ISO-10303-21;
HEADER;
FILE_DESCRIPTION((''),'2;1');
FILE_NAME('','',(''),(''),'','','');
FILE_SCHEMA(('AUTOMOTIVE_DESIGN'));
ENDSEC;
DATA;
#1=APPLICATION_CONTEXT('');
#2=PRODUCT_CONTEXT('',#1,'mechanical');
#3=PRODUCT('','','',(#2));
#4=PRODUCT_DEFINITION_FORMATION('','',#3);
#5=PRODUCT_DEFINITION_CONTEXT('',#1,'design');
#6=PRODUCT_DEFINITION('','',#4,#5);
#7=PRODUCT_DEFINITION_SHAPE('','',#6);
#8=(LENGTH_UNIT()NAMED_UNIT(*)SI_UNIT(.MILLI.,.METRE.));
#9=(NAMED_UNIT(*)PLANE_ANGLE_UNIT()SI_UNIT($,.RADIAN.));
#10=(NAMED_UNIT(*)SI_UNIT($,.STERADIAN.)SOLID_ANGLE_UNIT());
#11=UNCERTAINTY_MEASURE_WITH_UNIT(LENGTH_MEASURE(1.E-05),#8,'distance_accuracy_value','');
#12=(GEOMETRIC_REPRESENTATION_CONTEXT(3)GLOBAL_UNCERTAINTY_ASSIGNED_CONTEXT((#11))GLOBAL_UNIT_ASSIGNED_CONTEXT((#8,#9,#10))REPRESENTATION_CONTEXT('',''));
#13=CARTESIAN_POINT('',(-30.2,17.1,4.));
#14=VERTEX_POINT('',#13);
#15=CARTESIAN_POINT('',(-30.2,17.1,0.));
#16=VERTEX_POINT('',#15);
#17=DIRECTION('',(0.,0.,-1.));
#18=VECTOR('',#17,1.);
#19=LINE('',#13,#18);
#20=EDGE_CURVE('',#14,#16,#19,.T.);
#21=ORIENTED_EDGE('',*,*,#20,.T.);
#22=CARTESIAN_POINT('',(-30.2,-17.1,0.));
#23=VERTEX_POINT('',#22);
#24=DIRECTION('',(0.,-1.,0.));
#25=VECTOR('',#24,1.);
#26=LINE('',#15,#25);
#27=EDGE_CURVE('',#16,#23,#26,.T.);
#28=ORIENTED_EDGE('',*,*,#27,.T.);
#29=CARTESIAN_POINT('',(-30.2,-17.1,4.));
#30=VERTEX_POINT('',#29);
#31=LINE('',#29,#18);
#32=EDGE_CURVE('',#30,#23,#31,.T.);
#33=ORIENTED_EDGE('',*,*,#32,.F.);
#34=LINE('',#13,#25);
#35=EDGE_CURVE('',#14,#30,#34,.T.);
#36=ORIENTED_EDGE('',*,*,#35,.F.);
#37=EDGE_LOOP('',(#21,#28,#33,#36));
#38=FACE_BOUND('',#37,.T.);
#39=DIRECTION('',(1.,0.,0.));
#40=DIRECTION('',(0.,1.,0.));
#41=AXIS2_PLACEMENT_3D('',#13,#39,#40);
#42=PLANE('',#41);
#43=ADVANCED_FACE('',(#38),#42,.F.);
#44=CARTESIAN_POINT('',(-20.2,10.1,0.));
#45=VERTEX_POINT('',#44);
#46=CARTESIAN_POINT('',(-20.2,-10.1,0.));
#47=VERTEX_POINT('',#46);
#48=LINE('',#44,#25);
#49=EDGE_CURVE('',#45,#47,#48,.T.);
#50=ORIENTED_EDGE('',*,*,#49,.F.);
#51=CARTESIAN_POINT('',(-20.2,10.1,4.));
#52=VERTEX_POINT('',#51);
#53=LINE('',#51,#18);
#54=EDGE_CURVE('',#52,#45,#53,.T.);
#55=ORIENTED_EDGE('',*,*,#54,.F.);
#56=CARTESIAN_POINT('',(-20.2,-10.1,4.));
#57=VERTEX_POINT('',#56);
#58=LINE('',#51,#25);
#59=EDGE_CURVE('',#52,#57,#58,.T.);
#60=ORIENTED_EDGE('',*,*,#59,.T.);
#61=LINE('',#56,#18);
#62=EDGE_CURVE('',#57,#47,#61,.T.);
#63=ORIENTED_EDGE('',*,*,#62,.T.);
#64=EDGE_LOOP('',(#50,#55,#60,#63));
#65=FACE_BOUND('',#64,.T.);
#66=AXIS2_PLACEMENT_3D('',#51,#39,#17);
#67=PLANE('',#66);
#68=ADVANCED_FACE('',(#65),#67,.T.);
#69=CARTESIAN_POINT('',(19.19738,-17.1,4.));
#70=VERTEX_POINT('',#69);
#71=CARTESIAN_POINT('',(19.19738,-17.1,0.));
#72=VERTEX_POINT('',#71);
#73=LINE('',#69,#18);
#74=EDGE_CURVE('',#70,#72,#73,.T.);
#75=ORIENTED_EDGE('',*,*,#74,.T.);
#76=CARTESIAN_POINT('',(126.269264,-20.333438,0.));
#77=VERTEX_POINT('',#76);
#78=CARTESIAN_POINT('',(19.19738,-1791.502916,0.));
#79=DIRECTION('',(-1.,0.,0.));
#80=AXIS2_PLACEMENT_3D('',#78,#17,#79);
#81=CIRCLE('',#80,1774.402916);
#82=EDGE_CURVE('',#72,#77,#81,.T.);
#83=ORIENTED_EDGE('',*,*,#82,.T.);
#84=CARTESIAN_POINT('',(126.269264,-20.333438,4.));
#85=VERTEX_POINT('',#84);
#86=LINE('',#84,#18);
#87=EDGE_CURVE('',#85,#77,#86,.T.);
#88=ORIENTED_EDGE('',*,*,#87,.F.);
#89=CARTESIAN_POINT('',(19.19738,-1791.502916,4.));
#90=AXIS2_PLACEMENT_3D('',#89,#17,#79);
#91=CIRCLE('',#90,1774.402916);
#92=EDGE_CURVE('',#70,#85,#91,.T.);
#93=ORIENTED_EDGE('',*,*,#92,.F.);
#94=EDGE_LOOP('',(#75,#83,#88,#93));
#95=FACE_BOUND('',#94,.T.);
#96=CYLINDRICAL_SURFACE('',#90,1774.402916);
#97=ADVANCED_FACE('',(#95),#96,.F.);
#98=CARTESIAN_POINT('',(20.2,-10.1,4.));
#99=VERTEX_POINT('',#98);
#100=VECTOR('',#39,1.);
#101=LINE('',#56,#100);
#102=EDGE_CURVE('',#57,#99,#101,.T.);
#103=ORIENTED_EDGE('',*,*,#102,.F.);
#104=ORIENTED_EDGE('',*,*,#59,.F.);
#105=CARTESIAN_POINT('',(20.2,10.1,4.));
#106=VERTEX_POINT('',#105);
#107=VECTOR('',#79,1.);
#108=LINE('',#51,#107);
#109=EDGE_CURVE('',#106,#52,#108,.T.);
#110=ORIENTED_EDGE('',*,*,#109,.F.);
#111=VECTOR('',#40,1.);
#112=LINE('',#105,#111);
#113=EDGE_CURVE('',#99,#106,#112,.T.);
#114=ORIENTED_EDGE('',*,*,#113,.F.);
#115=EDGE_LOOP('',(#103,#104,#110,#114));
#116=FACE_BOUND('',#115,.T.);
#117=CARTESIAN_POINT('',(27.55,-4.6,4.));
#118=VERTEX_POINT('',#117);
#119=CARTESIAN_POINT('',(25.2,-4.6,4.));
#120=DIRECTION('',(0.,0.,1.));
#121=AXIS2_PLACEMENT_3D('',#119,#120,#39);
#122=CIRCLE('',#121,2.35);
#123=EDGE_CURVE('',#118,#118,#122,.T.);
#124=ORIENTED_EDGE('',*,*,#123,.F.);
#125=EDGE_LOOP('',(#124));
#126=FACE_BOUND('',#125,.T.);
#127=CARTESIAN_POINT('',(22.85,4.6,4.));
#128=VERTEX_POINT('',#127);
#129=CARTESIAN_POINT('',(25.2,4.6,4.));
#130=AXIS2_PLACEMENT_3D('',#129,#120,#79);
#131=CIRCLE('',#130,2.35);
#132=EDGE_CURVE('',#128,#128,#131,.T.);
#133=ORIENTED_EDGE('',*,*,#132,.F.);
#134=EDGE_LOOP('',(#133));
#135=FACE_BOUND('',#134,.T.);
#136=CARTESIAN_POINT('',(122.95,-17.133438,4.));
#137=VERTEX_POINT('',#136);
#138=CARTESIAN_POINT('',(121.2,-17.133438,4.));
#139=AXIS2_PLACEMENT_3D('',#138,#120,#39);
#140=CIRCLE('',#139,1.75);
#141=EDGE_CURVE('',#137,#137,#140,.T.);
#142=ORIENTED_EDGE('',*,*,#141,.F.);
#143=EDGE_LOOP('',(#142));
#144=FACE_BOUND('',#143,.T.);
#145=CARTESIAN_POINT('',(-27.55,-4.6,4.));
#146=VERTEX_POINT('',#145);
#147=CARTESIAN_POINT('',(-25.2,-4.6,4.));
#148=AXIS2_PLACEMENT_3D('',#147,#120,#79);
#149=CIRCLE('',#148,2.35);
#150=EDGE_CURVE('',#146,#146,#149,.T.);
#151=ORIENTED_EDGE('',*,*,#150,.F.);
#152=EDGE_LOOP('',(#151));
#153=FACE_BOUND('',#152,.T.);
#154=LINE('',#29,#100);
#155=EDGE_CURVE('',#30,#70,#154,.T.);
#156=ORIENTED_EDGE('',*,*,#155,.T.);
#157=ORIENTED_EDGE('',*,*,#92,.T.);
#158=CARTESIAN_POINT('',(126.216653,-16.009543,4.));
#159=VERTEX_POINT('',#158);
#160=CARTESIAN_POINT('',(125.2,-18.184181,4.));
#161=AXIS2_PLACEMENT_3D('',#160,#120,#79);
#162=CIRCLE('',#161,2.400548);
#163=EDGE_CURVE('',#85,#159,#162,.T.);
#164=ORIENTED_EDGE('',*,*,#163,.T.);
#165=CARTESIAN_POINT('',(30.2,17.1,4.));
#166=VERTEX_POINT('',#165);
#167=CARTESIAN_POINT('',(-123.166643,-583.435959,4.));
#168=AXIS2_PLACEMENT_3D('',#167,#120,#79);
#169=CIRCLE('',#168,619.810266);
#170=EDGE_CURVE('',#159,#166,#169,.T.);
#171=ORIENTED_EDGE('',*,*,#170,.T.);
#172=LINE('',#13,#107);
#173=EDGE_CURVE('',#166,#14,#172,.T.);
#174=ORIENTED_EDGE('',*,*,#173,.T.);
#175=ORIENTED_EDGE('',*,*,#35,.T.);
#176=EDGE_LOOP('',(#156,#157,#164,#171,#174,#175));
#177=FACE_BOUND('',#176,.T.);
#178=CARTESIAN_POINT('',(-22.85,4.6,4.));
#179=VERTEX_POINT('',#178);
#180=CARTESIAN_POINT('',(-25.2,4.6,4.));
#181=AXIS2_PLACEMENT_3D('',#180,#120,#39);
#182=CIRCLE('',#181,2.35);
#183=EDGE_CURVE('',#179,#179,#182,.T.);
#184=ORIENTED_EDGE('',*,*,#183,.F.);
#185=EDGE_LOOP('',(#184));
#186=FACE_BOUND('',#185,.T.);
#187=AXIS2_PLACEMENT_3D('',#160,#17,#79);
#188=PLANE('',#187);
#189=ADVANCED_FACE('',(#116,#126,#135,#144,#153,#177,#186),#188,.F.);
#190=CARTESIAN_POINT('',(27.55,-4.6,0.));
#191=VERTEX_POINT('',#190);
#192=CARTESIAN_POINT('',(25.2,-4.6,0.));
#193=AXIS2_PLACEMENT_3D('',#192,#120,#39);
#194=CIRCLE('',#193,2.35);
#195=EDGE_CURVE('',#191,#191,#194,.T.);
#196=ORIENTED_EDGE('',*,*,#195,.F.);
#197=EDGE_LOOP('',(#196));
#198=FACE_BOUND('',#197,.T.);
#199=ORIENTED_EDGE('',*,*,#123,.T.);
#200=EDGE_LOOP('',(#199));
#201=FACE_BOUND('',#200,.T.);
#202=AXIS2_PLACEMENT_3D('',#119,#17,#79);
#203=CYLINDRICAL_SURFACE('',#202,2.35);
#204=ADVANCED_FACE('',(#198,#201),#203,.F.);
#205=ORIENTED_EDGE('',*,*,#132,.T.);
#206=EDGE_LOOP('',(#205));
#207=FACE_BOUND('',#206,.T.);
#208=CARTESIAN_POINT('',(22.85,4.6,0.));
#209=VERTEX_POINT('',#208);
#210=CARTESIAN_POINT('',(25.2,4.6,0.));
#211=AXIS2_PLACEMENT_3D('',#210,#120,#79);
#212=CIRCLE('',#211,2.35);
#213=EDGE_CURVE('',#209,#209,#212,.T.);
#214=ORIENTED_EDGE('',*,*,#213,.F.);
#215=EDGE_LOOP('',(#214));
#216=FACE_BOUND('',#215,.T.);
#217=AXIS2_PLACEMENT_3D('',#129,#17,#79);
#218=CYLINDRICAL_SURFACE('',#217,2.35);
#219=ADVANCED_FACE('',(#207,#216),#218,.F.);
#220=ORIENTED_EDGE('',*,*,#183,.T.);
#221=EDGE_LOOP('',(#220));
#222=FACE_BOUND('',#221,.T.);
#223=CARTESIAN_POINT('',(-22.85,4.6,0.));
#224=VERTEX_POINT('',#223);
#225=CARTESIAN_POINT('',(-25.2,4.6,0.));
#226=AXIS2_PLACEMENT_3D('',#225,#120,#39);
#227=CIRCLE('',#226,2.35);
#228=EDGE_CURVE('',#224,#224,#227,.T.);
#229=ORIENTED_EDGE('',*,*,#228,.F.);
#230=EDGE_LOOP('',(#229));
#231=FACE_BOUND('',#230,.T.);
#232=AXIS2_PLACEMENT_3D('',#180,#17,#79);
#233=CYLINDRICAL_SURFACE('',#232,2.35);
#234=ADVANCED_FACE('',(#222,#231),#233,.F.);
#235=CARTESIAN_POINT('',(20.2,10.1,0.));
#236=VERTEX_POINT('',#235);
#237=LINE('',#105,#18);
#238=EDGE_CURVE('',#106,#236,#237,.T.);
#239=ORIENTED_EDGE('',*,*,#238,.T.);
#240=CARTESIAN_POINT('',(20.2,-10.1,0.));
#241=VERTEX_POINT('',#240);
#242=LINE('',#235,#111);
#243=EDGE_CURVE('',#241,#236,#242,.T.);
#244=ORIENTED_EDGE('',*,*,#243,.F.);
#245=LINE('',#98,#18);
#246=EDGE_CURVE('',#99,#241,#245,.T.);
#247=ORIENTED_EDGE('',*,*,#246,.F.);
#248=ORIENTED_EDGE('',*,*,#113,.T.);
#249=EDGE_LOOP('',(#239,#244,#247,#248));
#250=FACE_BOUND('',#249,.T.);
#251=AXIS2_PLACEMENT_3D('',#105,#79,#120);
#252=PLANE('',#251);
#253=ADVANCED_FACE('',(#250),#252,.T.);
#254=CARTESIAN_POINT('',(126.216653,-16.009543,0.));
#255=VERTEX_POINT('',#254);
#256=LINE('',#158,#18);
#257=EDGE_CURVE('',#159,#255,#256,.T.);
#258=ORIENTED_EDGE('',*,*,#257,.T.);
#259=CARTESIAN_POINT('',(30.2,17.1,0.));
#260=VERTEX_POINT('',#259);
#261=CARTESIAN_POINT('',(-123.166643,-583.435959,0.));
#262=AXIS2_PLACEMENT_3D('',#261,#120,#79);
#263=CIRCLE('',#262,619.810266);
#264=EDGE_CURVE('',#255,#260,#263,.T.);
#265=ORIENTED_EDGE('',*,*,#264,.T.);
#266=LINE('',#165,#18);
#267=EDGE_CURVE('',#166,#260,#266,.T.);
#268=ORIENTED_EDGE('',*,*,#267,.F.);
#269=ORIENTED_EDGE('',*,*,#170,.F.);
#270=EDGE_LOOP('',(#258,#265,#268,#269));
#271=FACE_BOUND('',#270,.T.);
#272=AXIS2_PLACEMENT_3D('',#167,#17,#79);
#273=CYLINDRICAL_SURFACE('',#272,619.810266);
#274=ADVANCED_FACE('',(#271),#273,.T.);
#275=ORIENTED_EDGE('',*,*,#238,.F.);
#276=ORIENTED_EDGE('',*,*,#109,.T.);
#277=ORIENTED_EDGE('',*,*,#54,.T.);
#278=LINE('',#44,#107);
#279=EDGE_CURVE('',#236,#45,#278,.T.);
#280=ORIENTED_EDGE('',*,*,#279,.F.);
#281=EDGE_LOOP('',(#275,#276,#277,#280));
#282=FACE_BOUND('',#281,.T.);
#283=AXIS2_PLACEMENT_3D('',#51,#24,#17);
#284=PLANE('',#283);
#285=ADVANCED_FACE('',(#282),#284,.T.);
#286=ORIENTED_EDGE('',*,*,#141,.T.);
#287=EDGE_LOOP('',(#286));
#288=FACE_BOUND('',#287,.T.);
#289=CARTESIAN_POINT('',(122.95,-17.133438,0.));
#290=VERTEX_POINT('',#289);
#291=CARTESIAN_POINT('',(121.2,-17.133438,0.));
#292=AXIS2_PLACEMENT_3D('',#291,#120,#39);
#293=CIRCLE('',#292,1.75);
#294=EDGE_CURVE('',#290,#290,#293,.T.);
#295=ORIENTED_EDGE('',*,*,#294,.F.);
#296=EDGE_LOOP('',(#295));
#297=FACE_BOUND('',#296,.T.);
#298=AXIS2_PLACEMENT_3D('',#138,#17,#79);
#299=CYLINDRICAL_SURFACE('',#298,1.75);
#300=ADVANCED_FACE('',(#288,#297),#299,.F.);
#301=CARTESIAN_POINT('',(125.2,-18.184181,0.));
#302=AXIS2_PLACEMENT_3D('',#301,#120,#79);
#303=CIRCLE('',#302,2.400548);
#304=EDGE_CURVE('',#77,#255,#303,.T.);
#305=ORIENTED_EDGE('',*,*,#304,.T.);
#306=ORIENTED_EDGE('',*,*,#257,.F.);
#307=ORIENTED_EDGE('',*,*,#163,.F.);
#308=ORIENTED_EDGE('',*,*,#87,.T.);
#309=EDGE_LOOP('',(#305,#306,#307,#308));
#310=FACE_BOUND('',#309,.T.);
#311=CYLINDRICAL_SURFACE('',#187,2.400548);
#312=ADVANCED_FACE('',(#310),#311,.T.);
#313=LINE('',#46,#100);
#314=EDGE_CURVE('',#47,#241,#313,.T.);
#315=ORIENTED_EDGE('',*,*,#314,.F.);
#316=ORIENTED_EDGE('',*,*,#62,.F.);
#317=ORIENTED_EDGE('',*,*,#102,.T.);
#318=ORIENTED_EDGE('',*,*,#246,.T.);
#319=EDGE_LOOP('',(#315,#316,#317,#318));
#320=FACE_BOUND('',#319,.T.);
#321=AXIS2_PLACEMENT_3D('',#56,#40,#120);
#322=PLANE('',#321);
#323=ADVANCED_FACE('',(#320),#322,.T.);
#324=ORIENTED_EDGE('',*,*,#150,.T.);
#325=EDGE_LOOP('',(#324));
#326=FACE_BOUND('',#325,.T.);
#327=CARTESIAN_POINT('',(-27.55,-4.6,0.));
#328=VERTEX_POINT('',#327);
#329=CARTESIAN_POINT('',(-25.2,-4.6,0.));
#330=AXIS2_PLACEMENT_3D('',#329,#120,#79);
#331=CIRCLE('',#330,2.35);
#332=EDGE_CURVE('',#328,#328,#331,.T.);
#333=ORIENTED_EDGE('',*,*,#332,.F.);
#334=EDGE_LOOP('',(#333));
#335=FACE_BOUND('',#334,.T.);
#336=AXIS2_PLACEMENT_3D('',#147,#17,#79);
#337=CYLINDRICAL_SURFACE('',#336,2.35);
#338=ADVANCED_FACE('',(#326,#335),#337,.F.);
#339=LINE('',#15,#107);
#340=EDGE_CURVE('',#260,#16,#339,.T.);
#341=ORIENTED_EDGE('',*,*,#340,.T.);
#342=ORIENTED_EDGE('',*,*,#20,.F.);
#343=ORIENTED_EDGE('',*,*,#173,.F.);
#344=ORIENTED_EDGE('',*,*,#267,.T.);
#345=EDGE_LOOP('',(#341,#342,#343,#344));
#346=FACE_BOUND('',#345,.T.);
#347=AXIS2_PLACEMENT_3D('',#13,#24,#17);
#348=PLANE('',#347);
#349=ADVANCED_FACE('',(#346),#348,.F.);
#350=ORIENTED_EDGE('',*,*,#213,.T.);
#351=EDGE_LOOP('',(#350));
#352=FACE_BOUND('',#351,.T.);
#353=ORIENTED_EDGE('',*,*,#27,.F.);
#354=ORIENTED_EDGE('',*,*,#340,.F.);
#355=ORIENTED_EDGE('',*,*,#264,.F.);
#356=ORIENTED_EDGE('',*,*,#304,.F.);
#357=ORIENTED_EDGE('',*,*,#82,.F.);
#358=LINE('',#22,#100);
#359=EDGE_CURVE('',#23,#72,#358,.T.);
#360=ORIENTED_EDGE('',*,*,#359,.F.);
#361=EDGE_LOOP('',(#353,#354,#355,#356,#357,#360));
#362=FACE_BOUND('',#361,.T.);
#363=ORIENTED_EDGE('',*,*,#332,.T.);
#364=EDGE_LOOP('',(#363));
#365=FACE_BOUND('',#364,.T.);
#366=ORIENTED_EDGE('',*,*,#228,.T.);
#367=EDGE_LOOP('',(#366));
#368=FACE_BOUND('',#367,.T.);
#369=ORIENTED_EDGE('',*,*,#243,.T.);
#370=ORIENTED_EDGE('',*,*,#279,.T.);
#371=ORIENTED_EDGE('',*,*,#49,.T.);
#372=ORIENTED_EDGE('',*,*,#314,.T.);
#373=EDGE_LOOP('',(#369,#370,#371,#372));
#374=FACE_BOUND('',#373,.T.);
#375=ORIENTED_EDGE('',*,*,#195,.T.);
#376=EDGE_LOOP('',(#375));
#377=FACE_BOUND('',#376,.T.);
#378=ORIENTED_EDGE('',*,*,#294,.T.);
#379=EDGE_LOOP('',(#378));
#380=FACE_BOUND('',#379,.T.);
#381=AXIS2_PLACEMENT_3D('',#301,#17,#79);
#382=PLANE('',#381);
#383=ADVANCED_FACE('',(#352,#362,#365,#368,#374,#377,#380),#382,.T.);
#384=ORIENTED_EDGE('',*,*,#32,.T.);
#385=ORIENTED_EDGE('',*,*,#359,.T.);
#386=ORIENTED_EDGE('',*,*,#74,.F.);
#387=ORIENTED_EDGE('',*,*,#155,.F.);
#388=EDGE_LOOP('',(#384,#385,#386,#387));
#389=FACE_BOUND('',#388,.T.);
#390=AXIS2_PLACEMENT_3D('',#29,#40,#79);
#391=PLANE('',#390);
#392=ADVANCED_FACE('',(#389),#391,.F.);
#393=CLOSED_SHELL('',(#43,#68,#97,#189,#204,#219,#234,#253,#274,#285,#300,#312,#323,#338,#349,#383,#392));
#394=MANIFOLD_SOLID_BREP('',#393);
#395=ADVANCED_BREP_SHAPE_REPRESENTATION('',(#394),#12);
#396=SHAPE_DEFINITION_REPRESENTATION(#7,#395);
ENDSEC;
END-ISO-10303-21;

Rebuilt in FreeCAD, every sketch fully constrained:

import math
import FreeCAD as App
import Part
import Sketcher

V = App.Vector


def add_polygon(sketch, points):
    """Adds a closed chain of lines whose ends are joined by coincident constraints."""
    first, n = sketch.GeometryCount, len(points)
    for a, b in zip(points, points[1:] + points[:1]):
        sketch.addGeometry(Part.LineSegment(App.Vector(*a, 0), App.Vector(*b, 0)), False)
    for i in range(n):
        sketch.addConstraint(Sketcher.Constraint("Coincident", first + i, 2, first + (i + 1) % n, 1))

doc = App.newDocument("Part")
body = doc.addObject("PartDesign::Body", "Body")

sketch1 = body.newObject("Sketcher::SketchObject", "Sketch")
sketch1.AttachmentSupport = (doc.getObject("XY_Plane"), [""])
sketch1.MapMode = "FlatFace"
sketch1.addGeometry(Part.LineSegment(V(30.2, 17.1, 0), V(-30.2, 17.1, 0)), False)
sketch1.addGeometry(Part.LineSegment(V(-30.2, 17.1, 0), V(-30.2, -17.1, 0)), False)
sketch1.addGeometry(Part.LineSegment(V(-30.2, -17.1, 0), V(19.2, -17.1, 0)), False)
sketch1.addGeometry(Part.ArcOfCircle(Part.Circle(V(19.2, -1791.5, 0), V(0, 0, 1), 1774.4), math.radians(86.54), math.radians(90)), False)
sketch1.addGeometry(Part.ArcOfCircle(Part.Circle(V(125.2, -18.2, 0), V(0, 0, 1), 2.4), math.radians(-64), math.radians(65)), False)
sketch1.addGeometry(Part.ArcOfCircle(Part.Circle(V(-123.2, -583.4, 0), V(0, 0, 1), 619.8), math.radians(66.27), math.radians(75.67)), False)
sketch1.addGeometry(Part.Circle(V(121.2, -17.1, 0), V(0, 0, 1), 1.8), False)
sketch1.addGeometry(Part.Circle(V(25.2, -4.6, 0), V(0, 0, 1), 2.4), False)
sketch1.addGeometry(Part.Circle(V(-25.2, -4.6, 0), V(0, 0, 1), 2.4), False)
add_polygon(sketch1, [(-20.2, -10.1), (-20.2, 10.1), (20.2, 10.1), (20.2, -10.1)])
sketch1.addGeometry(Part.Circle(V(25.2, 4.6, 0), V(0, 0, 1), 2.4), False)
sketch1.addGeometry(Part.Circle(V(-25.2, 4.6, 0), V(0, 0, 1), 2.4), False)
sketch1.addConstraint([
    Sketcher.Constraint("Coincident", 0, 2, 1, 1),
    Sketcher.Constraint("Coincident", 1, 2, 2, 1),
    Sketcher.Constraint("Tangent", 2, 2, 3, 2),
    Sketcher.Constraint("Coincident", 3, 1, 4, 1),
    Sketcher.Constraint("Coincident", 4, 2, 5, 1),
    Sketcher.Constraint("Coincident", 5, 2, 0, 1),
    Sketcher.Constraint("Horizontal", 0),
    Sketcher.Constraint("Vertical", 1),
    Sketcher.Constraint("Horizontal", 2),
    Sketcher.Constraint("Vertical", 9),
    Sketcher.Constraint("Horizontal", 10),
    Sketcher.Constraint("Vertical", 11),
    Sketcher.Constraint("Horizontal", 12),
    Sketcher.Constraint("Equal", 7, 8),
    Sketcher.Constraint("Equal", 8, 13),
    Sketcher.Constraint("Equal", 13, 14),
    Sketcher.Constraint("Symmetric", 8, 3, 13, 3, -1, 1),
    Sketcher.Constraint("Symmetric", 7, 3, 14, 3, -1, 1),
    Sketcher.Constraint("Symmetric", 9, 2, 11, 2, -1, 1),
    Sketcher.Constraint("Symmetric", 7, 3, 8, 3, -2),
    Sketcher.Constraint("Diameter", 6, 3.5),
    Sketcher.Constraint("Diameter", 7, 4.7),
    Sketcher.Constraint("DistanceX", 0, 2, 0, 1, 60.4),
    Sketcher.Constraint("DistanceX", 10, 1, 10, 2, 40.4),
    Sketcher.Constraint("DistanceY", 1, 2, 1, 1, 34.2),
    Sketcher.Constraint("DistanceY", 9, 1, 9, 2, 20.2),
    Sketcher.Constraint("DistanceX", 6, 3, 4, 3, 4.0),
    Sketcher.Constraint("DistanceX", 7, 3, 6, 3, 96.0),
    Sketcher.Constraint("DistanceX", 0, 2, 14, 3, 5.0),
    Sketcher.Constraint("DistanceX", 14, 3, 9, 2, 5.0),
    Sketcher.Constraint("DistanceY", 9, 2, 0, 2, 7.0),
    Sketcher.Constraint("DistanceY", 7, 3, -1, 1, 4.6),
    Sketcher.Constraint("DistanceY", 3, 1, 6, 3, 3.2),
    Sketcher.Constraint("Radius", 3, 1774.402916),
    Sketcher.Constraint("Radius", 4, 2.400548),
    Sketcher.Constraint("Radius", 5, 619.810266),
    Sketcher.Constraint("DistanceX", 2, 1, 2, 2, 49.39738),
    Sketcher.Constraint("DistanceY", 4, 3, -1, 1, 18.184181),
    Sketcher.Constraint("DistanceY", 5, 3, -1, 1, 583.435959),
])
pad1 = body.newObject("PartDesign::Pad", "Pad")
pad1.Profile = sketch1
pad1.Length = 4

doc.recompute()
